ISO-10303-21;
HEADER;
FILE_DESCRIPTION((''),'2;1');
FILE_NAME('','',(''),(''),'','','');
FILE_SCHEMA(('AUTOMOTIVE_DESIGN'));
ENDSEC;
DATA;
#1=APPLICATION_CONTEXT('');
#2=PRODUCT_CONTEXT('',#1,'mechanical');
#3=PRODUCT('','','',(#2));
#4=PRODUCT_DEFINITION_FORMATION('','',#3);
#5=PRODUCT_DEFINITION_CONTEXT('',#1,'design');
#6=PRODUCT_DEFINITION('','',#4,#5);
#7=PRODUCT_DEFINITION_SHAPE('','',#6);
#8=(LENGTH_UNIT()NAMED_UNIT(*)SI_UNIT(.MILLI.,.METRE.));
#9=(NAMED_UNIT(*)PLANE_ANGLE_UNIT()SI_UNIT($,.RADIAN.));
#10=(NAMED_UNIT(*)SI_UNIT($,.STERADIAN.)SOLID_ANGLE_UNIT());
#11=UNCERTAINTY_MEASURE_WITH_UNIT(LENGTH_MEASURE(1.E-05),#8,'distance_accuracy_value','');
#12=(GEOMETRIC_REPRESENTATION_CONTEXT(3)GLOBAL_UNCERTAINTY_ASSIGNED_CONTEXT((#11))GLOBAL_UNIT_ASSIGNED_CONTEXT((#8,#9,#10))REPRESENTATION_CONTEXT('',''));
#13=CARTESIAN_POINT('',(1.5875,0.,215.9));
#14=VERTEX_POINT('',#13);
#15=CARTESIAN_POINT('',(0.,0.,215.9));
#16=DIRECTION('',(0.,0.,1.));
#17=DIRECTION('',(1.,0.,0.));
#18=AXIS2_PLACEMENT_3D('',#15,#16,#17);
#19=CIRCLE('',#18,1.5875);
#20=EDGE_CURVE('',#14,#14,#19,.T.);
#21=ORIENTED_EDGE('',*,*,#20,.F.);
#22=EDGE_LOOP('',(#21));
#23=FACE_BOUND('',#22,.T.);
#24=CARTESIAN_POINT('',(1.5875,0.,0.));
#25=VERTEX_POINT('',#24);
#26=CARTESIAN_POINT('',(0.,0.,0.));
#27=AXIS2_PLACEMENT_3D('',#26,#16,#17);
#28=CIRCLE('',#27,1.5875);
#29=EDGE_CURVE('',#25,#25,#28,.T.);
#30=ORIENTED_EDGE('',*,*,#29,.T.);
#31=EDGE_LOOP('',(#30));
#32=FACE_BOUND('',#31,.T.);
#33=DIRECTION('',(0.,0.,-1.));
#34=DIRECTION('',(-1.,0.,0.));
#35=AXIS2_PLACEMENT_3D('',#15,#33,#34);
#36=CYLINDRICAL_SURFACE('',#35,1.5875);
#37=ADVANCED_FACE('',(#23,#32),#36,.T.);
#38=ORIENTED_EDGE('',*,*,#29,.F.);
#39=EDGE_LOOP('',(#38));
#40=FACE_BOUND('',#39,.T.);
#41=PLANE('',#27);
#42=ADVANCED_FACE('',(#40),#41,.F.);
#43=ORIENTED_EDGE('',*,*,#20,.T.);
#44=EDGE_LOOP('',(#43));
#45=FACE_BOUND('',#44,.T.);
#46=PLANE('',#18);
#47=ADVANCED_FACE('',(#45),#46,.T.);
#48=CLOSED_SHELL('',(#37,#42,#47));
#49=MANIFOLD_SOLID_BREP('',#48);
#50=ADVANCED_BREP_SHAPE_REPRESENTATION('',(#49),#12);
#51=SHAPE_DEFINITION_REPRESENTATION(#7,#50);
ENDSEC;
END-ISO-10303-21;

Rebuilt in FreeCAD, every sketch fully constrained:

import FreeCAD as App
import Part
import Sketcher
from FreeCAD import Vector
Q = App.Units.Quantity

doc = App.newDocument("Part")
body = doc.addObject("PartDesign::Body", "Body")

sketch1 = body.newObject("Sketcher::SketchObject", "Sketch")
sketch1.AttachmentSupport = (doc.getObject("XY_Plane"), [""])
sketch1.MapMode = "FlatFace"
sketch1.addGeometry(Part.Circle(Vector(0, 0, 0), Vector(0, 0, 1), 1.6), False)
sketch1.addConstraint([
    Sketcher.Constraint("Coincident", 0, 3, -1, 1),
    Sketcher.Constraint("Diameter", 0, Q("0.125 in")),
])
pad1 = body.newObject("PartDesign::Pad", "Pad")
pad1.Profile = sketch1
pad1.Length = Q("8.5 in")

doc.recompute()
